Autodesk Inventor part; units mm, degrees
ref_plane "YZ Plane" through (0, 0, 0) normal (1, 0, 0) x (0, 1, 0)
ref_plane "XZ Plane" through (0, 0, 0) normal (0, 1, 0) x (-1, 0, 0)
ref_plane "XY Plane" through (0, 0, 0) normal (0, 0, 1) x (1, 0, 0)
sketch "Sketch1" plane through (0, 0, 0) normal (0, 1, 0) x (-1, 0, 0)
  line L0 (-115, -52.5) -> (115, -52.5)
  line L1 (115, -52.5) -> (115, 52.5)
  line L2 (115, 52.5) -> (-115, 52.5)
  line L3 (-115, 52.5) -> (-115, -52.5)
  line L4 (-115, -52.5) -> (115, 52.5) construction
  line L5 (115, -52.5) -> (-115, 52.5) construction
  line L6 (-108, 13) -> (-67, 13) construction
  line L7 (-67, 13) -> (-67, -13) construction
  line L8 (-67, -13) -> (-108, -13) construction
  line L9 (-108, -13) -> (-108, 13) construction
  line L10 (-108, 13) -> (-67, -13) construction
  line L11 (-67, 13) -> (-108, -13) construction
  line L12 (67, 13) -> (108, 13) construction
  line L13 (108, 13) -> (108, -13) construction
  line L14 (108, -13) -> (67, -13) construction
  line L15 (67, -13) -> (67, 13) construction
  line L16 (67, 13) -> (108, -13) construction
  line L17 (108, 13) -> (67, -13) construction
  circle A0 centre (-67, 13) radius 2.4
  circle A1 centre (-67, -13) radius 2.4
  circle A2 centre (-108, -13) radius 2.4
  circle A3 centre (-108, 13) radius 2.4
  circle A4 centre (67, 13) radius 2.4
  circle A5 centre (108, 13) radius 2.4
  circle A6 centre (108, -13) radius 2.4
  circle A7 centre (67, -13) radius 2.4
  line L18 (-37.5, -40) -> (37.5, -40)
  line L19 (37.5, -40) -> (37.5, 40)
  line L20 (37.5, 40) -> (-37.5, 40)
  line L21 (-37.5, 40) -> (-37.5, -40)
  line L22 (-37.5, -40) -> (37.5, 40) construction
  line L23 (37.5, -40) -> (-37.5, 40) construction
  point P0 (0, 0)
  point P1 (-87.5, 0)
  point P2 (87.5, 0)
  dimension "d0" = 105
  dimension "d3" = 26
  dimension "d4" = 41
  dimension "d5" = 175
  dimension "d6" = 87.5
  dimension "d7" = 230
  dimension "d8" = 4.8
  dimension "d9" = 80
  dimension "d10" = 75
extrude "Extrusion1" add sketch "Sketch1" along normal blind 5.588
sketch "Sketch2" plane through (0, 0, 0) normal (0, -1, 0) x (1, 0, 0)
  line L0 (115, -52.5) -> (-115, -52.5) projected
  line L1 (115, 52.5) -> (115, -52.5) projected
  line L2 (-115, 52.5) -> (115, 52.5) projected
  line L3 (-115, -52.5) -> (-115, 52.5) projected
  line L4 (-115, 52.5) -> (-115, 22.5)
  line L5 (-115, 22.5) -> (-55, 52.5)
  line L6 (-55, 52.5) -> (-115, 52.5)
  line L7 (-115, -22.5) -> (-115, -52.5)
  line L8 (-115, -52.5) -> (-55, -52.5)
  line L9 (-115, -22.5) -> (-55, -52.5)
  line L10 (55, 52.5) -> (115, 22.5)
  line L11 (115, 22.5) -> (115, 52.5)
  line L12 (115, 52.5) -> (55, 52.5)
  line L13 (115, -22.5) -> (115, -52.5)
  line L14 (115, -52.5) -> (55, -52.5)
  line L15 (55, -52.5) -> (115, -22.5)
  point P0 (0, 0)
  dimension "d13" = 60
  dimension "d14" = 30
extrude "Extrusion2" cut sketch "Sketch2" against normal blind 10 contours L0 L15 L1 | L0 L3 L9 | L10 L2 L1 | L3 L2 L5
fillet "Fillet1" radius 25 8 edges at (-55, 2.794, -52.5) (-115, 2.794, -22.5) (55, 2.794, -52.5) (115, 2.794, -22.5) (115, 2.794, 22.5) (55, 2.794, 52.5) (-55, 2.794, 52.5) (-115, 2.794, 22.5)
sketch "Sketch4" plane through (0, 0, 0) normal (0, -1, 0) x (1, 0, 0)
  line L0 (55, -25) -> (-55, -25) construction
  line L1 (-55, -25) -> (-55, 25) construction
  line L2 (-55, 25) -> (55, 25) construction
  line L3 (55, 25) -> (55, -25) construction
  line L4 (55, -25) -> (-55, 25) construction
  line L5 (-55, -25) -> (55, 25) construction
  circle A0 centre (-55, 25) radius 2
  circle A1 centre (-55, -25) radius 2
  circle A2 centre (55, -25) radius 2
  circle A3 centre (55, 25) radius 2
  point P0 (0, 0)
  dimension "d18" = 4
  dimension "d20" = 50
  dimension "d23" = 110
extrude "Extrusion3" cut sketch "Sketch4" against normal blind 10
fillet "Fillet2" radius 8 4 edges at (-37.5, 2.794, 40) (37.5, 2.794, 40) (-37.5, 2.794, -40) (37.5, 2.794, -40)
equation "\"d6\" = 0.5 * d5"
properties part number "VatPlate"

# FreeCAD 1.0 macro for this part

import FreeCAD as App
import Part
import Sketcher


def edges_at(feature, points):
    """Names of the edges that pass closest to the given points."""
    edges = feature.Shape.Edges
    near = lambda p: min(range(len(edges)), key=lambda i: edges[i].distToShape(Part.Vertex(*p))[0])
    return sorted({f"Edge{near(p) + 1}" for p in points})

doc = App.newDocument("Part")
body = doc.addObject("PartDesign::Body", "Body")

# Sketch on XZ plane
sketch1 = doc.addObject("Sketcher::SketchObject", "Sketch")
body.addObject(sketch1)
sketch1.AttachmentSupport = (doc.XZ_Plane, [""])
sketch1.MapMode = "FlatFace"
sketch1.addGeometry(Part.LineSegment(App.Vector(115, 52.5, 0), App.Vector(115, -52.5, 0)), False)
sketch1.addGeometry(Part.LineSegment(App.Vector(115, -52.5, 0), App.Vector(-115, -52.5, 0)), False)
sketch1.addGeometry(Part.LineSegment(App.Vector(-115, -52.5, 0), App.Vector(-115, 52.5, 0)), False)
sketch1.addGeometry(Part.LineSegment(App.Vector(-115, 52.5, 0), App.Vector(115, 52.5, 0)), False)
sketch1.addGeometry(Part.Circle(App.Vector(108, -13, 0), App.Vector(0, 0, 1), 2.4), False)
sketch1.addGeometry(Part.Circle(App.Vector(67, -13, 0), App.Vector(0, 0, 1), 2.4), False)
sketch1.addGeometry(Part.Circle(App.Vector(-67, -13, 0), App.Vector(0, 0, 1), 2.4), False)
sketch1.addGeometry(Part.Circle(App.Vector(-108, -13, 0), App.Vector(0, 0, 1), 2.4), False)
sketch1.addGeometry(Part.Circle(App.Vector(108, 13, 0), App.Vector(0, 0, 1), 2.4), False)
sketch1.addGeometry(Part.Circle(App.Vector(67, 13, 0), App.Vector(0, 0, 1), 2.4), False)
sketch1.addGeometry(Part.LineSegment(App.Vector(-37.5, -40, 0), App.Vector(37.5, -40, 0)), False)
sketch1.addGeometry(Part.LineSegment(App.Vector(37.5, -40, 0), App.Vector(37.5, 40, 0)), False)
sketch1.addGeometry(Part.LineSegment(App.Vector(37.5, 40, 0), App.Vector(-37.5, 40, 0)), False)
sketch1.addGeometry(Part.LineSegment(App.Vector(-37.5, 40, 0), App.Vector(-37.5, -40, 0)), False)
sketch1.addGeometry(Part.Circle(App.Vector(-67, 13, 0), App.Vector(0, 0, 1), 2.4), False)
sketch1.addGeometry(Part.Circle(App.Vector(-108, 13, 0), App.Vector(0, 0, 1), 2.4), False)
sketch1.addConstraint(Sketcher.Constraint("Coincident", 0, 2, 1, 1))
sketch1.addConstraint(Sketcher.Constraint("Coincident", 1, 2, 2, 1))
sketch1.addConstraint(Sketcher.Constraint("Coincident", 2, 2, 3, 1))
sketch1.addConstraint(Sketcher.Constraint("Coincident", 3, 2, 0, 1))
sketch1.addConstraint(Sketcher.Constraint("Coincident", 10, 2, 11, 1))
sketch1.addConstraint(Sketcher.Constraint("Coincident", 11, 2, 12, 1))
sketch1.addConstraint(Sketcher.Constraint("Coincident", 12, 2, 13, 1))
sketch1.addConstraint(Sketcher.Constraint("Coincident", 13, 2, 10, 1))
sketch1.addConstraint(Sketcher.Constraint("Vertical", 0))
sketch1.addConstraint(Sketcher.Constraint("Horizontal", 1))
sketch1.addConstraint(Sketcher.Constraint("Vertical", 2))
sketch1.addConstraint(Sketcher.Constraint("Horizontal", 3))
sketch1.addConstraint(Sketcher.Constraint("Horizontal", 10))
sketch1.addConstraint(Sketcher.Constraint("Vertical", 11))
sketch1.addConstraint(Sketcher.Constraint("Horizontal", 12))
sketch1.addConstraint(Sketcher.Constraint("Vertical", 13))
sketch1.addConstraint(Sketcher.Constraint("Equal", 4, 5))
sketch1.addConstraint(Sketcher.Constraint("Equal", 5, 6))
sketch1.addConstraint(Sketcher.Constraint("Equal", 6, 7))
sketch1.addConstraint(Sketcher.Constraint("Equal", 7, 8))
sketch1.addConstraint(Sketcher.Constraint("Equal", 8, 9))
sketch1.addConstraint(Sketcher.Constraint("Equal", 9, 14))
sketch1.addConstraint(Sketcher.Constraint("Equal", 14, 15))
sketch1.addConstraint(Sketcher.Constraint("Symmetric", 7, 3, 8, 3, -1, 1))
sketch1.addConstraint(Sketcher.Constraint("Symmetric", 6, 3, 9, 3, -1, 1))
sketch1.addConstraint(Sketcher.Constraint("Symmetric", 5, 3, 14, 3, -1, 1))
sketch1.addConstraint(Sketcher.Constraint("Symmetric", 4, 3, 15, 3, -1, 1))
sketch1.addConstraint(Sketcher.Constraint("Symmetric", 0, 2, 2, 2, -1, 1))
sketch1.addConstraint(Sketcher.Constraint("Symmetric", 10, 2, 12, 2, -1, 1))
sketch1.addConstraint(Sketcher.Constraint("Symmetric", 5, 3, 6, 3, -2))
sketch1.addConstraint(Sketcher.Constraint("Symmetric", 4, 3, 7, 3, -2))
sketch1.addConstraint(Sketcher.Constraint("Horizontal", 4, 3, 5, 3))
sketch1.addConstraint(Sketcher.Constraint("Diameter", 4, 4.8))
sketch1.addConstraint(Sketcher.Constraint("DistanceX", 1, 2, 1, 1, 230.0))
sketch1.addConstraint(Sketcher.Constraint("DistanceX", 10, 1, 10, 2, 75.0))
sketch1.addConstraint(Sketcher.Constraint("DistanceY", 0, 2, 0, 1, 105.0))
sketch1.addConstraint(Sketcher.Constraint("DistanceY", 11, 1, 11, 2, 80.0))
sketch1.addConstraint(Sketcher.Constraint("DistanceX", 5, 3, 4, 3, 41.0))
sketch1.addConstraint(Sketcher.Constraint("DistanceX", 6, 3, 4, 3, 175.0))
sketch1.addConstraint(Sketcher.Constraint("DistanceY", 4, 3, 8, 3, 26.0))
pad1 = doc.addObject("PartDesign::Pad", "Pad")
body.addObject(pad1)
pad1.Profile = sketch1
pad1.Length = 5.588
pad1.Reversed = True

# Sketch on XZ plane
sketch2 = doc.addObject("Sketcher::SketchObject", "Sketch001")
body.addObject(sketch2)
sketch2.AttachmentSupport = (doc.XZ_Plane, [""])
sketch2.MapMode = "FlatFace"
sketch2.addGeometry(Part.LineSegment(App.Vector(55, -52, 0), App.Vector(115, -52, 0)), False)
sketch2.addGeometry(Part.LineSegment(App.Vector(115, -52, 0), App.Vector(115, -22, 0)), False)
sketch2.addGeometry(Part.LineSegment(App.Vector(115, -22, 0), App.Vector(55, -52, 0)), False)
sketch2.addGeometry(Part.LineSegment(App.Vector(-115, -52, 0), App.Vector(-55, -52, 0)), False)
sketch2.addGeometry(Part.LineSegment(App.Vector(-55, -52, 0), App.Vector(-115, -22, 0)), False)
sketch2.addGeometry(Part.LineSegment(App.Vector(-115, -22, 0), App.Vector(-115, -52, 0)), False)
sketch2.addGeometry(Part.LineSegment(App.Vector(55, 52, 0), App.Vector(115, 22, 0)), False)
sketch2.addGeometry(Part.LineSegment(App.Vector(115, 22, 0), App.Vector(115, 52, 0)), False)
sketch2.addGeometry(Part.LineSegment(App.Vector(115, 52, 0), App.Vector(55, 52, 0)), False)
sketch2.addGeometry(Part.LineSegment(App.Vector(-115, 52, 0), App.Vector(-115, 22, 0)), False)
sketch2.addGeometry(Part.LineSegment(App.Vector(-115, 22, 0), App.Vector(-55, 52, 0)), False)
sketch2.addGeometry(Part.LineSegment(App.Vector(-55, 52, 0), App.Vector(-115, 52, 0)), False)
sketch2.addConstraint(Sketcher.Constraint("Coincident", 0, 2, 1, 1))
sketch2.addConstraint(Sketcher.Constraint("Coincident", 1, 2, 2, 1))
sketch2.addConstraint(Sketcher.Constraint("Coincident", 2, 2, 0, 1))
sketch2.addConstraint(Sketcher.Constraint("Coincident", 3, 2, 4, 1))
sketch2.addConstraint(Sketcher.Constraint("Coincident", 4, 2, 5, 1))
sketch2.addConstraint(Sketcher.Constraint("Coincident", 5, 2, 3, 1))
sketch2.addConstraint(Sketcher.Constraint("Coincident", 6, 2, 7, 1))
sketch2.addConstraint(Sketcher.Constraint("Coincident", 7, 2, 8, 1))
sketch2.addConstraint(Sketcher.Constraint("Coincident", 8, 2, 6, 1))
sketch2.addConstraint(Sketcher.Constraint("Coincident", 9, 2, 10, 1))
sketch2.addConstraint(Sketcher.Constraint("Coincident", 10, 2, 11, 1))
sketch2.addConstraint(Sketcher.Constraint("Coincident", 11, 2, 9, 1))
sketch2.addConstraint(Sketcher.Constraint("Horizontal", 0))
sketch2.addConstraint(Sketcher.Constraint("Vertical", 1))
sketch2.addConstraint(Sketcher.Constraint("Horizontal", 3))
sketch2.addConstraint(Sketcher.Constraint("Vertical", 5))
sketch2.addConstraint(Sketcher.Constraint("Vertical", 7))
sketch2.addConstraint(Sketcher.Constraint("Horizontal", 8))
sketch2.addConstraint(Sketcher.Constraint("Vertical", 9))
sketch2.addConstraint(Sketcher.Constraint("Horizontal", 11))
sketch2.addConstraint(Sketcher.Constraint("Symmetric", 4, 2, 6, 2, -1, 1))
sketch2.addConstraint(Sketcher.Constraint("Symmetric", 3, 2, 8, 2, -1, 1))
sketch2.addConstraint(Sketcher.Constraint("Symmetric", 1, 2, 9, 2, -1, 1))
sketch2.addConstraint(Sketcher.Constraint("Symmetric", 2, 2, 10, 2, -1, 1))
sketch2.addConstraint(Sketcher.Constraint("Symmetric", 2, 2, 3, 2, -2))
sketch2.addConstraint(Sketcher.Constraint("Symmetric", 1, 2, 4, 2, -2))
sketch2.addConstraint(Sketcher.Constraint("DistanceX", 0, 1, 0, 2, 60.0))
sketch2.addConstraint(Sketcher.Constraint("DistanceY", 1, 1, 1, 2, 30.0))
sketch2.addConstraint(Sketcher.Constraint("DistanceX", -1, 1, 0, 2, 115.0))
sketch2.addConstraint(Sketcher.Constraint("DistanceY", 1, 2, 6, 2, 45.0))
pocket1 = doc.addObject("PartDesign::Pocket", "Pocket")
body.addObject(pocket1)
pocket1.Profile = sketch2
pocket1.Length = 10
doc.recompute()

fillet = doc.addObject("PartDesign::Fillet", "Fillet")
body.addObject(fillet)
fillet.Base = (pocket1, edges_at(pocket1, [
    (-55, 2.794, -52.5),
    (-115, 2.794, -22.5),
    (55, 2.794, -52.5),
    (115, 2.794, -22.5),
    (115, 2.794, 22.5),
    (55, 2.794, 52.5),
    (-55, 2.794, 52.5),
    (-115, 2.794, 22.5),
]))
fillet.Radius = 25

# Sketch on XZ plane
sketch3 = doc.addObject("Sketcher::SketchObject", "Sketch002")
body.addObject(sketch3)
sketch3.AttachmentSupport = (doc.XZ_Plane, [""])
sketch3.MapMode = "FlatFace"
sketch3.addGeometry(Part.Circle(App.Vector(-55, 25, 0), App.Vector(0, 0, 1), 2), False)
sketch3.addGeometry(Part.Circle(App.Vector(-55, -25, 0), App.Vector(0, 0, 1), 2), False)
sketch3.addGeometry(Part.Circle(App.Vector(55, -25, 0), App.Vector(0, 0, 1), 2), False)
sketch3.addGeometry(Part.Circle(App.Vector(55, 25, 0), App.Vector(0, 0, 1), 2), False)
sketch3.addConstraint(Sketcher.Constraint("Equal", 0, 1))
sketch3.addConstraint(Sketcher.Constraint("Equal", 1, 2))
sketch3.addConstraint(Sketcher.Constraint("Equal", 2, 3))
sketch3.addConstraint(Sketcher.Constraint("Symmetric", 0, 3, 2, 3, -1, 1))
sketch3.addConstraint(Sketcher.Constraint("Symmetric", 1, 3, 3, 3, -1, 1))
sketch3.addConstraint(Sketcher.Constraint("Symmetric", 1, 3, 2, 3, -2))
sketch3.addConstraint(Sketcher.Constraint("Diameter", 0, 4.0))
sketch3.addConstraint(Sketcher.Constraint("DistanceY", 1, 3, 0, 3, 50.0))
sketch3.addConstraint(Sketcher.Constraint("DistanceX", 1, 3, 2, 3, 110.0))
pocket2 = doc.addObject("PartDesign::Pocket", "Pocket001")
body.addObject(pocket2)
pocket2.Profile = sketch3
pocket2.Length = 10
doc.recompute()

fillet2 = doc.addObject("PartDesign::Fillet", "Fillet001")
body.addObject(fillet2)
fillet2.Base = (pocket2, edges_at(pocket2, [
    (-37.5, 2.794, 40),
    (37.5, 2.794, 40),
    (-37.5, 2.794, -40),
    (37.5, 2.794, -40),
]))
fillet2.Radius = 8

doc.recompute()
